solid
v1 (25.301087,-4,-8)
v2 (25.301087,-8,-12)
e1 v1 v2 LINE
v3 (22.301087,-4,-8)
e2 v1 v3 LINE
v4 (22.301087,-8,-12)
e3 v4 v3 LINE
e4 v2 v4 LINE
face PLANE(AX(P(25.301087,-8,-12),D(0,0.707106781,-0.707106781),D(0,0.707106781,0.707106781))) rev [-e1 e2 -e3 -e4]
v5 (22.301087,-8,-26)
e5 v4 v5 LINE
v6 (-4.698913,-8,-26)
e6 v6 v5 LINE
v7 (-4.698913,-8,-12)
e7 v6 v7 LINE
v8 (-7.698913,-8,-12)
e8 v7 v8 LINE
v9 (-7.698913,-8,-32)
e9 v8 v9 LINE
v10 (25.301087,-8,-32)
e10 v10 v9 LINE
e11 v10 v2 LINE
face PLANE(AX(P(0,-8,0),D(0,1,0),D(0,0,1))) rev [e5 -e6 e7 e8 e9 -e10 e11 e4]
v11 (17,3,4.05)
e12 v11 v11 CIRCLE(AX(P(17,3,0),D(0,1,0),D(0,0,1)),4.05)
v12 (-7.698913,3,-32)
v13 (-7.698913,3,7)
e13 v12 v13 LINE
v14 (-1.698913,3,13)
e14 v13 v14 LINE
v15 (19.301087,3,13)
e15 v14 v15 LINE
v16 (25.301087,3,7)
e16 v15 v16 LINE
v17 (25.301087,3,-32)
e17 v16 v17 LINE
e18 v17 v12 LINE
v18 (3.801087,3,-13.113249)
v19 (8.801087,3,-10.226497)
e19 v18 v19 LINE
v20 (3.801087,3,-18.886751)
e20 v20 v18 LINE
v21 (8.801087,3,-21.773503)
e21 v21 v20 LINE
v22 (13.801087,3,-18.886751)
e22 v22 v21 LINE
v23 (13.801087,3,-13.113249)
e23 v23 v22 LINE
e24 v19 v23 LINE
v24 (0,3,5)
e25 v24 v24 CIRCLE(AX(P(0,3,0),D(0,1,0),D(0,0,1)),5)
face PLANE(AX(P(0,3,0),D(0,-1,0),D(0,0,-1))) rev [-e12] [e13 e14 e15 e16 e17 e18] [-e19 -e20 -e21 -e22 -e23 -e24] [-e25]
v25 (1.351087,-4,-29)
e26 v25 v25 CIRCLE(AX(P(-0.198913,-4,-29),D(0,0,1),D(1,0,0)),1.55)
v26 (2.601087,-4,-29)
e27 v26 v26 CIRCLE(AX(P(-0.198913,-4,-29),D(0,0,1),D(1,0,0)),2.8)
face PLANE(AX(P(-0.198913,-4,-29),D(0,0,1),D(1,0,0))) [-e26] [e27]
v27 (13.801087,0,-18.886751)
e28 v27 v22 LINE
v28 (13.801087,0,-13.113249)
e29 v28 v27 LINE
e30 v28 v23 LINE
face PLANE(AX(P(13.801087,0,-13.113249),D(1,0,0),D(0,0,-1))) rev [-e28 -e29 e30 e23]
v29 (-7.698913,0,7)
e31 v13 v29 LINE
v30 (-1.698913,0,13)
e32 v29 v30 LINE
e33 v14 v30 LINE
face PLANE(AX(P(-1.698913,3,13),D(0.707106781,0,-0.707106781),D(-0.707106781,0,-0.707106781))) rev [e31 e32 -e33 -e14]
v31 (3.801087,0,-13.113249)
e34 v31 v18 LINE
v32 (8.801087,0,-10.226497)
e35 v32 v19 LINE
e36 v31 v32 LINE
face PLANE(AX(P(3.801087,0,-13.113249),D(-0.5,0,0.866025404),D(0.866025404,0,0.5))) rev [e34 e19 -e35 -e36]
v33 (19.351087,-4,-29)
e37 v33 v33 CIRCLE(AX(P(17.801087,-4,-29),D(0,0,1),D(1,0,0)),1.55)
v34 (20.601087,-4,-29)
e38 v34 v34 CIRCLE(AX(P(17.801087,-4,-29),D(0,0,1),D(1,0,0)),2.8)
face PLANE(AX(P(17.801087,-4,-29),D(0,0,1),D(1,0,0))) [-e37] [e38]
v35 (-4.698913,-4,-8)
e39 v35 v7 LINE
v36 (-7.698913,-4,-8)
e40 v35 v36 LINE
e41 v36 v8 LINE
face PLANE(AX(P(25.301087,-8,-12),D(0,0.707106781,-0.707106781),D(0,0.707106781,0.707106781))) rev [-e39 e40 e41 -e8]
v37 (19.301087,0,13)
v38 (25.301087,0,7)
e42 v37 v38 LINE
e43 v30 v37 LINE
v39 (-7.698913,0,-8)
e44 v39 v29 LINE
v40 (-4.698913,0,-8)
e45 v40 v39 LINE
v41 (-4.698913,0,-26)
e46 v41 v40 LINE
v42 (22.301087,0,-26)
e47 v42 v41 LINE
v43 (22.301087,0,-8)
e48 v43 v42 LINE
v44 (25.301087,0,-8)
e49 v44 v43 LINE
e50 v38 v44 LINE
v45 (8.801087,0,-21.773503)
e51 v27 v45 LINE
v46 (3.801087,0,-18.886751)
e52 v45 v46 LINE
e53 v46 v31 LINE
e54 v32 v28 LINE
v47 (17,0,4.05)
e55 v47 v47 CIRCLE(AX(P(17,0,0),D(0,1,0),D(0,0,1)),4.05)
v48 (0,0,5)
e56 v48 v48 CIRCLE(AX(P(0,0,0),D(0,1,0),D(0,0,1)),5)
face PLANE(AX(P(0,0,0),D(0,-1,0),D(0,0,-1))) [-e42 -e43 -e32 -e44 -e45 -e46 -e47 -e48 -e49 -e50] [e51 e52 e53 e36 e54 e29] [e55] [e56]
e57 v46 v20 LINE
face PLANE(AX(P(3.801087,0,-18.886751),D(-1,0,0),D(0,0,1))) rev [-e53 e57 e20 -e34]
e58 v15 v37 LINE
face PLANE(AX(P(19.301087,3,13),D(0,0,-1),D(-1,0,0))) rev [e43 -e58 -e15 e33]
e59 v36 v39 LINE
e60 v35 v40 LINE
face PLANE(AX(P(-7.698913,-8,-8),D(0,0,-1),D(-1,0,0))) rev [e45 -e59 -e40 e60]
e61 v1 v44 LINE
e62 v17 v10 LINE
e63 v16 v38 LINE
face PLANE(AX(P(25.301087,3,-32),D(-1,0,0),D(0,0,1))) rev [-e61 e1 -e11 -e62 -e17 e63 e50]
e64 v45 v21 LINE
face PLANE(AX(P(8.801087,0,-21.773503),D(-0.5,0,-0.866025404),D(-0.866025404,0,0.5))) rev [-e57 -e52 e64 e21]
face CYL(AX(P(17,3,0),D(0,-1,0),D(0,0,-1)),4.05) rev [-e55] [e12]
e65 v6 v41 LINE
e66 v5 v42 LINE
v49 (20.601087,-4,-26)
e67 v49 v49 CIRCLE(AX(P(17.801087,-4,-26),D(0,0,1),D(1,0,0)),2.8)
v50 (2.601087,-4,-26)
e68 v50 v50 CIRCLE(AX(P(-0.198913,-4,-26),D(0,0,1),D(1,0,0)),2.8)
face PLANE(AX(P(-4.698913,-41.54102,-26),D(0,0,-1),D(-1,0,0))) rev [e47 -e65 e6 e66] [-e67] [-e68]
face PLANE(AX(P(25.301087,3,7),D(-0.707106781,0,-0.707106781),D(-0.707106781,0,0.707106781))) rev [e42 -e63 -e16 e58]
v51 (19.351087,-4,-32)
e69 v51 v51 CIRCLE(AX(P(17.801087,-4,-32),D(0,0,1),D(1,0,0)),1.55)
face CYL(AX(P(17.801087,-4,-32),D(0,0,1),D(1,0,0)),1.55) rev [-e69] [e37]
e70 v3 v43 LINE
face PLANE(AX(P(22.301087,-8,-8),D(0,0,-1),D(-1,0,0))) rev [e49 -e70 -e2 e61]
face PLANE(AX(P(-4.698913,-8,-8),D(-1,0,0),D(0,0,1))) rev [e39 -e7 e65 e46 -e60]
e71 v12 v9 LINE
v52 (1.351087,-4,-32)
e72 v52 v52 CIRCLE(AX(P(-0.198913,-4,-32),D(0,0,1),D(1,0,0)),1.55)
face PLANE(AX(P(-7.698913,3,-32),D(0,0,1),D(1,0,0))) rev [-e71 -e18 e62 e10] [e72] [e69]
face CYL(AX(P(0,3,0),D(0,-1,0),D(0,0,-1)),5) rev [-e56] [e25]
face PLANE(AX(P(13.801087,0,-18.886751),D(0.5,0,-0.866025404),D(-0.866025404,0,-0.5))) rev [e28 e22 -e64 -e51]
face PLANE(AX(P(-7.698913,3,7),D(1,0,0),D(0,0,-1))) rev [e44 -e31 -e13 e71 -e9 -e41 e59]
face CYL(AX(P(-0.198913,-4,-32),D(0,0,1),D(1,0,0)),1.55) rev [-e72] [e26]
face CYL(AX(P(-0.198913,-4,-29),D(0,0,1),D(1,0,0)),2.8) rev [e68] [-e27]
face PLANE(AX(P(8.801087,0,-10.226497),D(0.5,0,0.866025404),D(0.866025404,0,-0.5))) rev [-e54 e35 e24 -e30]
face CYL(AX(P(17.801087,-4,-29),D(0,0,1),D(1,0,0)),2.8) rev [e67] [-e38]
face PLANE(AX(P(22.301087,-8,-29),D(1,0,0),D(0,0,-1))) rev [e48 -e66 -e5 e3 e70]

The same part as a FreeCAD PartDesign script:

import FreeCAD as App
import Part
import Sketcher
Q = App.Units.Quantity

doc = App.newDocument("Part")
body = doc.addObject("PartDesign::Body", "Body")

# Sketch on XZ plane
sketch1 = body.newObject("Sketcher::SketchObject", "Sketch")
sketch1.AttachmentSupport = (doc.getObject("XZ_Plane"), [""])
sketch1.MapMode = "FlatFace"
sketch1.addGeometry([
    Part.LineSegment(App.Vector(25.301087, -32, 0), App.Vector(-7.698913, -32, 0)),  # 0
    Part.LineSegment(App.Vector(-7.698913, -32, 0), App.Vector(-7.698913, 7, 0)),  # 1
    Part.LineSegment(App.Vector(-7.698913, 7, 0), App.Vector(-1.698913, 13, 0)),  # 2
    Part.LineSegment(App.Vector(-1.698913, 13, 0), App.Vector(19.301087, 13, 0)),  # 3
    Part.LineSegment(App.Vector(19.301087, 13, 0), App.Vector(25.301087, 7, 0)),  # 4
    Part.LineSegment(App.Vector(25.301087, 7, 0), App.Vector(25.301087, -32, 0)),  # 5
    Part.Circle(App.Vector(17, 0, 0), App.Vector(0, 0, 1), 4.05),  # 6
    Part.Circle(App.Vector(0, 0, 0), App.Vector(0, 0, 1), 5),  # 7
], False)
sketch1.addConstraint([
    Sketcher.Constraint("Coincident", 0, 2, 1, 1),
    Sketcher.Constraint("Coincident", 1, 2, 2, 1),
    Sketcher.Constraint("Coincident", 2, 2, 3, 1),
    Sketcher.Constraint("Coincident", 3, 2, 4, 1),
    Sketcher.Constraint("Coincident", 4, 2, 5, 1),
    Sketcher.Constraint("Coincident", 5, 2, 0, 1),
    Sketcher.Constraint("Horizontal", 0),
    Sketcher.Constraint("Vertical", 1),
    Sketcher.Constraint("Horizontal", 3),
    Sketcher.Constraint("Vertical", 5),
    Sketcher.Constraint("Coincident", 7, 3, -1, 1),
    Sketcher.Constraint("PointOnObject", 6, 3, -1),
    Sketcher.Constraint("Perpendicular", 2, 4),
    Sketcher.Constraint("Horizontal", 1, 2, 4, 2),
    Sketcher.Constraint("Equal", 2, 4),
    Sketcher.Constraint("Diameter", 7, 10.0),
    Sketcher.Constraint("Diameter", 6, 8.1),
    Sketcher.Constraint("DistanceX", 0, 2, 0, 1, 33.0),
    Sketcher.Constraint("DistanceX", 3, 1, 3, 2, 21.0),
    Sketcher.Constraint("DistanceY", 1, 1, 1, 2, 39.0),
    Sketcher.Constraint("DistanceX", -1, 1, 6, 3, 17.0),
    Sketcher.Constraint("DistanceY", 0, 2, -1, 1, 32.0),
    Sketcher.Constraint("DistanceX", 0, 2, -1, 1, 7.698913),
])
pad1 = body.newObject("PartDesign::Pad", "Pad")
pad1.Profile = sketch1
pad1.Length = 3
pad1.Reversed = True

# Sketch on XZ plane
sketch2 = body.newObject("Sketcher::SketchObject", "Sketch001")
sketch2.AttachmentSupport = (doc.getObject("XZ_Plane"), [""])
sketch2.MapMode = "FlatFace"
sketch2.addGeometry([
    Part.LineSegment(App.Vector(-7.698913, -8, 0), App.Vector(-7.698913, -29, 0)),
    Part.LineSegment(App.Vector(-7.698913, -29, 0), App.Vector(-4.698913, -29, 0)),
    Part.LineSegment(App.Vector(-4.698913, -29, 0), App.Vector(-4.698913, -8, 0)),
    Part.LineSegment(App.Vector(-4.698913, -8, 0), App.Vector(-7.698913, -8, 0)),
], False)
sketch2.addConstraint([
    Sketcher.Constraint("Coincident", 0, 2, 1, 1),
    Sketcher.Constraint("Coincident", 1, 2, 2, 1),
    Sketcher.Constraint("Coincident", 2, 2, 3, 1),
    Sketcher.Constraint("Coincident", 3, 2, 0, 1),
    Sketcher.Constraint("Vertical", 0),
    Sketcher.Constraint("Horizontal", 1),
    Sketcher.Constraint("Vertical", 2),
    Sketcher.Constraint("Horizontal", 3),
    Sketcher.Constraint("DistanceX", 1, 1, 1, 2, 3.0),
    Sketcher.Constraint("DistanceY", 0, 2, 0, 1, 21.0),
    Sketcher.Constraint("DistanceY", 0, 2, -1, 1, 29.0),
    Sketcher.Constraint("DistanceX", 0, 2, -1, 1, 7.698913),
])
pad2 = body.newObject("PartDesign::Pad", "Pad001")
pad2.Profile = sketch2
pad2.Length = 8

# Sketch on XZ plane
sketch3 = body.newObject("Sketcher::SketchObject", "Sketch002")
sketch3.AttachmentSupport = (doc.getObject("XZ_Plane"), [""])
sketch3.MapMode = "FlatFace"
sketch3.addGeometry([
    Part.LineSegment(App.Vector(22.301087, -8, 0), App.Vector(22.301087, -29, 0)),
    Part.LineSegment(App.Vector(22.301087, -29, 0), App.Vector(25.301087, -29, 0)),
    Part.LineSegment(App.Vector(25.301087, -29, 0), App.Vector(25.301087, -8, 0)),
    Part.LineSegment(App.Vector(25.301087, -8, 0), App.Vector(22.301087, -8, 0)),
], False)
sketch3.addConstraint([
    Sketcher.Constraint("Coincident", 0, 2, 1, 1),
    Sketcher.Constraint("Coincident", 1, 2, 2, 1),
    Sketcher.Constraint("Coincident", 2, 2, 3, 1),
    Sketcher.Constraint("Coincident", 3, 2, 0, 1),
    Sketcher.Constraint("Vertical", 0),
    Sketcher.Constraint("Horizontal", 1),
    Sketcher.Constraint("Vertical", 2),
    Sketcher.Constraint("Horizontal", 3),
    Sketcher.Constraint("DistanceX", 1, 1, 1, 2, 3.0),
    Sketcher.Constraint("DistanceY", 0, 2, 0, 1, 21.0),
    Sketcher.Constraint("DistanceY", 0, 2, -1, 1, 29.0),
    Sketcher.Constraint("DistanceX", -1, 1, 0, 2, 22.301087),
])
pad3 = body.newObject("PartDesign::Pad", "Pad002")
pad3.Profile = sketch3
pad3.Length = 8

# Sketch on YZ plane
sketch4 = body.newObject("Sketcher::SketchObject", "Sketch003")
sketch4.AttachmentSupport = (doc.getObject("YZ_Plane"), [""])
sketch4.MapMode = "FlatFace"
sketch4.AttachmentOffset = App.Placement(App.Vector(0, 0, -7.698913), App.Rotation())
sketch4.addGeometry([
    Part.LineSegment(App.Vector(-8, -12, 0), App.Vector(-8, -8, 0)),
    Part.LineSegment(App.Vector(-8, -8, 0), App.Vector(-4, -8, 0)),
    Part.LineSegment(App.Vector(-4, -8, 0), App.Vector(-8, -12, 0)),
], False)
sketch4.addConstraint([
    Sketcher.Constraint("Coincident", 0, 2, 1, 1),
    Sketcher.Constraint("Coincident", 1, 2, 2, 1),
    Sketcher.Constraint("Coincident", 2, 2, 0, 1),
    Sketcher.Constraint("Vertical", 0),
    Sketcher.Constraint("Horizontal", 1),
    Sketcher.Constraint("Equal", 1, 0),
    Sketcher.Constraint("DistanceX", 1, 1, 1, 2, 4.0),
    Sketcher.Constraint("DistanceX", 0, 2, -1, 1, 8.0),
    Sketcher.Constraint("DistanceY", 0, 2, -1, 1, 8.0),
])
pocket1 = body.newObject("PartDesign::Pocket", "Pocket")
pocket1.Profile = sketch4
pocket1.Type = "ThroughAll"
pocket1.Reversed = True

# Sketch on XZ plane
sketch5 = body.newObject("Sketcher::SketchObject", "Sketch004")
sketch5.AttachmentSupport = (doc.getObject("XZ_Plane"), [""])
sketch5.MapMode = "FlatFace"
sketch5.AttachmentOffset = App.Placement(App.Vector(0, 0, -3), App.Rotation())
sketch5.addGeometry([
    Part.LineSegment(App.Vector(8.801087, -10.226497, 0), App.Vector(13.801087, -13.113249, 0)),  # 0
    Part.LineSegment(App.Vector(13.801087, -13.113249, 0), App.Vector(13.801087, -18.886751, 0)),  # 1
    Part.LineSegment(App.Vector(13.801087, -18.886751, 0), App.Vector(8.801087, -21.773503, 0)),  # 2
    Part.LineSegment(App.Vector(8.801087, -21.773503, 0), App.Vector(3.801087, -18.886751, 0)),  # 3
    Part.LineSegment(App.Vector(3.801087, -18.886751, 0), App.Vector(3.801087, -13.113249, 0)),  # 4
    Part.LineSegment(App.Vector(3.801087, -13.113249, 0), App.Vector(8.801087, -10.226497, 0)),  # 5
], False)
sketch5.addConstraint([
    Sketcher.Constraint("Coincident", 0, 2, 1, 1),
    Sketcher.Constraint("Coincident", 1, 2, 2, 1),
    Sketcher.Constraint("Coincident", 2, 2, 3, 1),
    Sketcher.Constraint("Coincident", 3, 2, 4, 1),
    Sketcher.Constraint("Coincident", 4, 2, 5, 1),
    Sketcher.Constraint("Coincident", 5, 2, 0, 1),
    Sketcher.Constraint("Vertical", 1),
    Sketcher.Constraint("Vertical", 4),
    Sketcher.Constraint("Parallel", 0, 3),
    Sketcher.Constraint("Parallel", 2, 5),
    Sketcher.Constraint("Horizontal", 1, 2, 3, 2),
    Sketcher.Constraint("Horizontal", 0, 2, 4, 2),
    Sketcher.Constraint("Vertical", 2, 2, 5, 2),
    Sketcher.Constraint("Angle", 0, Q("-30 deg")),
    Sketcher.Constraint("DistanceX", 2, 2, 1, 2, 5.0),
    Sketcher.Constraint("DistanceY", 1, 2, 1, 1, 5.773503),
    Sketcher.Constraint("DistanceY", 0, 2, -1, 1, 13.113249),
    Sketcher.Constraint("DistanceX", -1, 1, 0, 2, 13.801087),
])
pocket2 = body.newObject("PartDesign::Pocket", "Pocket001")
pocket2.Profile = sketch5
pocket2.Length = 3
pocket2.Reversed = True

# Sketch on XZ plane
sketch6 = body.newObject("Sketcher::SketchObject", "Sketch005")
sketch6.AttachmentSupport = (doc.getObject("XZ_Plane"), [""])
sketch6.MapMode = "FlatFace"
sketch6.addGeometry([
    Part.LineSegment(App.Vector(-4.698913, -26, 0), App.Vector(-4.698913, -29, 0)),  # 0
    Part.LineSegment(App.Vector(-4.698913, -29, 0), App.Vector(-7.698913, -29, 0)),  # 1
    Part.LineSegment(App.Vector(-7.698913, -29, 0), App.Vector(-7.698913, -32, 0)),  # 2
    Part.LineSegment(App.Vector(-7.698913, -32, 0), App.Vector(25.301087, -32, 0)),  # 3
    Part.LineSegment(App.Vector(25.301087, -32, 0), App.Vector(25.301087, -29, 0)),  # 4
    Part.LineSegment(App.Vector(25.301087, -29, 0), App.Vector(22.301087, -29, 0)),  # 5
    Part.LineSegment(App.Vector(22.301087, -29, 0), App.Vector(22.301087, -26, 0)),  # 6
    Part.LineSegment(App.Vector(22.301087, -26, 0), App.Vector(-4.698913, -26, 0)),  # 7
], False)
sketch6.addConstraint([
    Sketcher.Constraint("Coincident", 0, 2, 1, 1),
    Sketcher.Constraint("Coincident", 1, 2, 2, 1),
    Sketcher.Constraint("Coincident", 2, 2, 3, 1),
    Sketcher.Constraint("Coincident", 3, 2, 4, 1),
    Sketcher.Constraint("Coincident", 4, 2, 5, 1),
    Sketcher.Constraint("Coincident", 5, 2, 6, 1),
    Sketcher.Constraint("Coincident", 6, 2, 7, 1),
    Sketcher.Constraint("Coincident", 7, 2, 0, 1),
    Sketcher.Constraint("Vertical", 0),
    Sketcher.Constraint("Horizontal", 1),
    Sketcher.Constraint("Vertical", 2),
    Sketcher.Constraint("Horizontal", 3),
    Sketcher.Constraint("Vertical", 4),
    Sketcher.Constraint("Horizontal", 5),
    Sketcher.Constraint("Vertical", 6),
    Sketcher.Constraint("Horizontal", 7),
    Sketcher.Constraint("Horizontal", 1, 2, 4, 2),
    Sketcher.Constraint("Equal", 1, 5),
    Sketcher.Constraint("Equal", 5, 0),
    Sketcher.Constraint("Equal", 0, 2),
    Sketcher.Constraint("DistanceX", 1, 2, 1, 1, 3.0),
    Sketcher.Constraint("DistanceX", 3, 1, 3, 2, 33.0),
    Sketcher.Constraint("DistanceY", 0, 2, -1, 1, 29.0),
    Sketcher.Constraint("DistanceX", 0, 2, -1, 1, 4.698913),
])
pad4 = body.newObject("PartDesign::Pad", "Pad003")
pad4.Profile = sketch6
pad4.Length = 8

# Sketch on XY plane
sketch7 = body.newObject("Sketcher::SketchObject", "Sketch006")
sketch7.AttachmentSupport = (doc.getObject("XY_Plane"), [""])
sketch7.MapMode = "FlatFace"
sketch7.AttachmentOffset = App.Placement(App.Vector(0, 0, -26), App.Rotation())
sketch7.addGeometry([
    Part.Circle(App.Vector(-0.198913, -4, 0), App.Vector(0, 0, 1), 1.55),
    Part.Circle(App.Vector(17.801087, -4, 0), App.Vector(0, 0, 1), 1.55),
], False)
sketch7.addConstraint([
    Sketcher.Constraint("Equal", 0, 1),
    Sketcher.Constraint("Horizontal", 0, 3, 1, 3),
    Sketcher.Constraint("Diameter", 0, 3.1),
    Sketcher.Constraint("DistanceY", 0, 3, -1, 1, 4.0),
    Sketcher.Constraint("DistanceX", 0, 3, 1, 3, 18.0),
    Sketcher.Constraint("DistanceX", 0, 3, -1, 1, 0.198913),
])
pocket3 = body.newObject("PartDesign::Pocket", "Pocket002")
pocket3.Profile = sketch7
pocket3.Type = "ThroughAll"

# Sketch on XY plane
sketch8 = body.newObject("Sketcher::SketchObject", "Sketch007")
sketch8.AttachmentSupport = (doc.getObject("XY_Plane"), [""])
sketch8.MapMode = "FlatFace"
sketch8.AttachmentOffset = App.Placement(App.Vector(0, 0, -26), App.Rotation())
sketch8.addGeometry([
    Part.Circle(App.Vector(-0.198913, -4, 0), App.Vector(0, 0, 1), 2.8),
    Part.Circle(App.Vector(-0.198913, -4, 0), App.Vector(0, 0, 1), 1.55),
    Part.Circle(App.Vector(17.801087, -4, 0), App.Vector(0, 0, 1), 2.8),
    Part.Circle(App.Vector(17.801087, -4, 0), App.Vector(0, 0, 1), 1.55),
], False)
sketch8.addConstraint([
    Sketcher.Constraint("Coincident", 1, 3, 0, 3),
    Sketcher.Constraint("Coincident", 3, 3, 2, 3),
    Sketcher.Constraint("Equal", 0, 2),
    Sketcher.Constraint("Equal", 1, 3),
    Sketcher.Constraint("Horizontal", 1, 3, 2, 3),
    Sketcher.Constraint("Diameter", 0, 5.6),
    Sketcher.Constraint("Diameter", 1, 3.1),
    Sketcher.Constraint("DistanceY", 0, 3, -1, 1, 4.0),
    Sketcher.Constraint("DistanceX", 0, 3, 2, 3, 18.0),
    Sketcher.Constraint("DistanceX", 0, 3, -1, 1, 0.198913),
])
pocket4 = body.newObject("PartDesign::Pocket", "Pocket003")
pocket4.Profile = sketch8
pocket4.Length = 3

doc.recompute()
